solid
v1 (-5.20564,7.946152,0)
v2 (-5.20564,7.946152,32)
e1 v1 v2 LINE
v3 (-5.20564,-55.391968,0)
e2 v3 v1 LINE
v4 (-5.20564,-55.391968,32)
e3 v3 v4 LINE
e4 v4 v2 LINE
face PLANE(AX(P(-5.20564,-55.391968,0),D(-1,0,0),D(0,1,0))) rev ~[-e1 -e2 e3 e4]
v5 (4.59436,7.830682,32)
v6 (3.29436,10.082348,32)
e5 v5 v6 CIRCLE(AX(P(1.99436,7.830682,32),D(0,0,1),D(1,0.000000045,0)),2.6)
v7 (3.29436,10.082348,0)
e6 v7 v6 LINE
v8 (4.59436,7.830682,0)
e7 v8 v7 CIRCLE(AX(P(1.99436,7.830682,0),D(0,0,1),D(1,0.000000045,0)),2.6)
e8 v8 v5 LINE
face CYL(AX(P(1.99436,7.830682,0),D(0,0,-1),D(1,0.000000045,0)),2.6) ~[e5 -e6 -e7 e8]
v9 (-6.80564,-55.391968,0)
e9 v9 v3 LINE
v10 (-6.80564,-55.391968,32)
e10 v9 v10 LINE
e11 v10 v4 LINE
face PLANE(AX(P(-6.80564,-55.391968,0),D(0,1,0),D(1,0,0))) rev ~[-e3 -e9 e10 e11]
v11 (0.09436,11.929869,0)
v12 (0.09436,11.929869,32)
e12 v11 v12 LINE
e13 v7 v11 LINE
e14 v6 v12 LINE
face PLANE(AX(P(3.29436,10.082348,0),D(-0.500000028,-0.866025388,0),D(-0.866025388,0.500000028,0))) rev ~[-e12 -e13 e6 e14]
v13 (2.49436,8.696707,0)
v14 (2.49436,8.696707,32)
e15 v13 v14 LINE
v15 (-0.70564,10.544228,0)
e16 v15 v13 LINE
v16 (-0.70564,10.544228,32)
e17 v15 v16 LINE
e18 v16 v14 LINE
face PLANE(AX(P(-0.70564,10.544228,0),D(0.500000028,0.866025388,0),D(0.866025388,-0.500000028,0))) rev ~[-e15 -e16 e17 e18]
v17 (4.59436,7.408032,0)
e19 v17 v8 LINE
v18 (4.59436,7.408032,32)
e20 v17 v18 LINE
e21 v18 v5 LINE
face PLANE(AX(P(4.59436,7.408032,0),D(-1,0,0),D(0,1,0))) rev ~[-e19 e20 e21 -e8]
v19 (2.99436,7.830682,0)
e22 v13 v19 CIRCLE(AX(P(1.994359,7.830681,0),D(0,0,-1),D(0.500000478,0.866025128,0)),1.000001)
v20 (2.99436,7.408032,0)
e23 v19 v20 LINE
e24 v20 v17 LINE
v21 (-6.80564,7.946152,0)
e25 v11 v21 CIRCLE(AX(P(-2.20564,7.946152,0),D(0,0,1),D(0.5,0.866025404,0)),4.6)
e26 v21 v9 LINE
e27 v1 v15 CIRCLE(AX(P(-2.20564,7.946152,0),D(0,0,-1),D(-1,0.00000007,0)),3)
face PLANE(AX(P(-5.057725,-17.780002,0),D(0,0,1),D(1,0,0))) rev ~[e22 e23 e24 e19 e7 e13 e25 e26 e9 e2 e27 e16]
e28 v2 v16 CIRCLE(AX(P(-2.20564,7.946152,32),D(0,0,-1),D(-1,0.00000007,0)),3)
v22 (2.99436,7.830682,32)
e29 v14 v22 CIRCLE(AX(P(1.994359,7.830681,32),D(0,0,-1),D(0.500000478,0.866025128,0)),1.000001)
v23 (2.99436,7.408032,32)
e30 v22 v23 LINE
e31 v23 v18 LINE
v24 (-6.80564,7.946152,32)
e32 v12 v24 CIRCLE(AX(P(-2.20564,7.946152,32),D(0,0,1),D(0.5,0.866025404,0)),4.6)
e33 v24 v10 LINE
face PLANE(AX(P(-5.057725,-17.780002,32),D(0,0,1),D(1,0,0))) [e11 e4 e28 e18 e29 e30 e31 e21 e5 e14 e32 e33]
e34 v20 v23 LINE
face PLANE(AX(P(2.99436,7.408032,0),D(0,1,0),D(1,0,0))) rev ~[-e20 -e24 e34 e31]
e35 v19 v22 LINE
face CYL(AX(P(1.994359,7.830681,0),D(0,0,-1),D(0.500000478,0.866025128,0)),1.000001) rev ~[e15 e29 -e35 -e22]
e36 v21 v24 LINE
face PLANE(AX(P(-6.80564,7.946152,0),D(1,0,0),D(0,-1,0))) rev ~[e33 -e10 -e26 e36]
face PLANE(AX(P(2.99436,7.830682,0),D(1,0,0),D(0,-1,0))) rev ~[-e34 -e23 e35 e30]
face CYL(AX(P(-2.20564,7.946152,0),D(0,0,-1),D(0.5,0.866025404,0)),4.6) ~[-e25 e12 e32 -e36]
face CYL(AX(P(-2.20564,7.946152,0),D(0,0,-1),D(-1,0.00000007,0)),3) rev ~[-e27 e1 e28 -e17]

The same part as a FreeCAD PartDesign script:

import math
import FreeCAD as App
import Part
import Sketcher
from FreeCAD import Vector
Q = App.Units.Quantity

doc = App.newDocument("Part")
body = doc.addObject("PartDesign::Body", "Body")

sketch1 = body.newObject("Sketcher::SketchObject", "Sketch")
sketch1.AttachmentSupport = (doc.getObject("XY_Plane"), [""])
sketch1.MapMode = "FlatFace"
sketch1.addGeometry([
    Part.LineSegment(Vector(-6.81, 7.95, 0), Vector(-6.81, -55.39, 0)),
    Part.LineSegment(Vector(-6.81, -55.39, 0), Vector(-5.21, -55.39, 0)),
    Part.LineSegment(Vector(-5.21, -55.39, 0), Vector(-5.21, 7.95, 0)),
    Part.ArcOfCircle(Part.Circle(Vector(-2.21, 7.95, 0), Vector(0, 0, 1), 3), math.radians(60), math.radians(180)),
    Part.LineSegment(Vector(-0.71, 10.54, 0), Vector(2.49, 8.7, 0)),
    Part.ArcOfCircle(Part.Circle(Vector(1.99, 7.83, 0), Vector(0, 0, 1), 1), math.radians(0), math.radians(60)),
    Part.LineSegment(Vector(2.99, 7.83, 0), Vector(2.99, 7.41, 0)),
    Part.LineSegment(Vector(2.99, 7.41, 0), Vector(4.59, 7.41, 0)),
    Part.LineSegment(Vector(4.59, 7.41, 0), Vector(4.59, 7.83, 0)),
    Part.ArcOfCircle(Part.Circle(Vector(1.99, 7.83, 0), Vector(0, 0, 1), 2.6), math.radians(0), math.radians(60)),
    Part.LineSegment(Vector(3.29, 10.08, 0), Vector(0.09, 11.93, 0)),
    Part.ArcOfCircle(Part.Circle(Vector(-2.21, 7.95, 0), Vector(0, 0, 1), 4.6), math.radians(60), math.radians(180)),
], False)
sketch1.addConstraint([
    Sketcher.Constraint("Coincident", 0, 2, 1, 1),
    Sketcher.Constraint("Coincident", 1, 2, 2, 1),
    Sketcher.Constraint("Tangent", 2, 2, 3, 2),
    Sketcher.Constraint("Tangent", 3, 1, 4, 1),
    Sketcher.Constraint("Tangent", 4, 2, 5, 2),
    Sketcher.Constraint("Tangent", 5, 1, 6, 1),
    Sketcher.Constraint("Coincident", 6, 2, 7, 1),
    Sketcher.Constraint("Coincident", 7, 2, 8, 1),
    Sketcher.Constraint("Tangent", 8, 2, 9, 1),
    Sketcher.Constraint("Tangent", 9, 2, 10, 1),
    Sketcher.Constraint("Tangent", 10, 2, 11, 1),
    Sketcher.Constraint("Tangent", 11, 2, 0, 1),
    Sketcher.Constraint("Vertical", 0),
    Sketcher.Constraint("Horizontal", 1),
    Sketcher.Constraint("Vertical", 2),
    Sketcher.Constraint("Vertical", 6),
    Sketcher.Constraint("Horizontal", 7),
    Sketcher.Constraint("Vertical", 8),
    Sketcher.Constraint("Coincident", 9, 3, 5, 3),
    Sketcher.Constraint("Coincident", 11, 3, 3, 3),
    Sketcher.Constraint("Parallel", 4, 10),
    Sketcher.Constraint("Radius", 3, Q("3 mm")),
    Sketcher.Constraint("Radius", 5, Q("1.000001 mm")),
    Sketcher.Constraint("Radius", 9, Q("2.6 mm")),
    Sketcher.Constraint("Angle", 4, Q("-30.000002 deg")),
    Sketcher.Constraint("DistanceX", 3, 3, 5, 3, Q("4.199999 mm")),
    Sketcher.Constraint("DistanceY", 0, 2, 0, 1, Q("63.33812 mm")),
    Sketcher.Constraint("DistanceY", 6, 2, 6, 1, Q("0.42265 mm")),
    Sketcher.Constraint("DistanceX", 3, 3, -1, 1, Q("2.20564 mm")),
    Sketcher.Constraint("DistanceY", -1, 1, 3, 3, Q("7.946152 mm")),
])
pad1 = body.newObject("PartDesign::Pad", "Pad")
pad1.Profile = sketch1
pad1.Length = 32

doc.recompute()
